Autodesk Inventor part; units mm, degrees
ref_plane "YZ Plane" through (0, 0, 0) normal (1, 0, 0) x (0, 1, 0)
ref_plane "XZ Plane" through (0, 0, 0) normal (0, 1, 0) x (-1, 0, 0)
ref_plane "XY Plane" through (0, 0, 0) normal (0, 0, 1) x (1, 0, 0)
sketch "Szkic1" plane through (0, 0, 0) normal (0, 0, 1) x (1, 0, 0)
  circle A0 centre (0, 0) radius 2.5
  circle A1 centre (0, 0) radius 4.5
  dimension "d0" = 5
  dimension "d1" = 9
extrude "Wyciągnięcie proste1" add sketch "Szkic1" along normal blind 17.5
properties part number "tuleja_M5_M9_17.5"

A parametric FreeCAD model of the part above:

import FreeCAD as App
import Part
import Sketcher
from FreeCAD import Vector

doc = App.newDocument("Part")
body = doc.addObject("PartDesign::Body", "Body")

sketch1 = doc.addObject("Sketcher::SketchObject", "Sketch")
body.addObject(sketch1)
sketch1.AttachmentSupport = (doc.XY_Plane, [""])
sketch1.MapMode = "FlatFace"
sketch1.addGeometry(Part.Circle(Vector(0, 0, 0), Vector(0, 0, 1), 4.5), False)
sketch1.addGeometry(Part.Circle(Vector(0, 0, 0), Vector(0, 0, 1), 2.5), False)
sketch1.addConstraint(Sketcher.Constraint("Coincident", 0, 3, -1, 1))
sketch1.addConstraint(Sketcher.Constraint("Coincident", 1, 3, -1, 1))
sketch1.addConstraint(Sketcher.Constraint("Diameter", 0, 9.0))
sketch1.addConstraint(Sketcher.Constraint("Diameter", 1, 5.0))
pad1 = doc.addObject("PartDesign::Pad", "Pad")
body.addObject(pad1)
pad1.Profile = sketch1
pad1.Length = 17.5

doc.recompute()
